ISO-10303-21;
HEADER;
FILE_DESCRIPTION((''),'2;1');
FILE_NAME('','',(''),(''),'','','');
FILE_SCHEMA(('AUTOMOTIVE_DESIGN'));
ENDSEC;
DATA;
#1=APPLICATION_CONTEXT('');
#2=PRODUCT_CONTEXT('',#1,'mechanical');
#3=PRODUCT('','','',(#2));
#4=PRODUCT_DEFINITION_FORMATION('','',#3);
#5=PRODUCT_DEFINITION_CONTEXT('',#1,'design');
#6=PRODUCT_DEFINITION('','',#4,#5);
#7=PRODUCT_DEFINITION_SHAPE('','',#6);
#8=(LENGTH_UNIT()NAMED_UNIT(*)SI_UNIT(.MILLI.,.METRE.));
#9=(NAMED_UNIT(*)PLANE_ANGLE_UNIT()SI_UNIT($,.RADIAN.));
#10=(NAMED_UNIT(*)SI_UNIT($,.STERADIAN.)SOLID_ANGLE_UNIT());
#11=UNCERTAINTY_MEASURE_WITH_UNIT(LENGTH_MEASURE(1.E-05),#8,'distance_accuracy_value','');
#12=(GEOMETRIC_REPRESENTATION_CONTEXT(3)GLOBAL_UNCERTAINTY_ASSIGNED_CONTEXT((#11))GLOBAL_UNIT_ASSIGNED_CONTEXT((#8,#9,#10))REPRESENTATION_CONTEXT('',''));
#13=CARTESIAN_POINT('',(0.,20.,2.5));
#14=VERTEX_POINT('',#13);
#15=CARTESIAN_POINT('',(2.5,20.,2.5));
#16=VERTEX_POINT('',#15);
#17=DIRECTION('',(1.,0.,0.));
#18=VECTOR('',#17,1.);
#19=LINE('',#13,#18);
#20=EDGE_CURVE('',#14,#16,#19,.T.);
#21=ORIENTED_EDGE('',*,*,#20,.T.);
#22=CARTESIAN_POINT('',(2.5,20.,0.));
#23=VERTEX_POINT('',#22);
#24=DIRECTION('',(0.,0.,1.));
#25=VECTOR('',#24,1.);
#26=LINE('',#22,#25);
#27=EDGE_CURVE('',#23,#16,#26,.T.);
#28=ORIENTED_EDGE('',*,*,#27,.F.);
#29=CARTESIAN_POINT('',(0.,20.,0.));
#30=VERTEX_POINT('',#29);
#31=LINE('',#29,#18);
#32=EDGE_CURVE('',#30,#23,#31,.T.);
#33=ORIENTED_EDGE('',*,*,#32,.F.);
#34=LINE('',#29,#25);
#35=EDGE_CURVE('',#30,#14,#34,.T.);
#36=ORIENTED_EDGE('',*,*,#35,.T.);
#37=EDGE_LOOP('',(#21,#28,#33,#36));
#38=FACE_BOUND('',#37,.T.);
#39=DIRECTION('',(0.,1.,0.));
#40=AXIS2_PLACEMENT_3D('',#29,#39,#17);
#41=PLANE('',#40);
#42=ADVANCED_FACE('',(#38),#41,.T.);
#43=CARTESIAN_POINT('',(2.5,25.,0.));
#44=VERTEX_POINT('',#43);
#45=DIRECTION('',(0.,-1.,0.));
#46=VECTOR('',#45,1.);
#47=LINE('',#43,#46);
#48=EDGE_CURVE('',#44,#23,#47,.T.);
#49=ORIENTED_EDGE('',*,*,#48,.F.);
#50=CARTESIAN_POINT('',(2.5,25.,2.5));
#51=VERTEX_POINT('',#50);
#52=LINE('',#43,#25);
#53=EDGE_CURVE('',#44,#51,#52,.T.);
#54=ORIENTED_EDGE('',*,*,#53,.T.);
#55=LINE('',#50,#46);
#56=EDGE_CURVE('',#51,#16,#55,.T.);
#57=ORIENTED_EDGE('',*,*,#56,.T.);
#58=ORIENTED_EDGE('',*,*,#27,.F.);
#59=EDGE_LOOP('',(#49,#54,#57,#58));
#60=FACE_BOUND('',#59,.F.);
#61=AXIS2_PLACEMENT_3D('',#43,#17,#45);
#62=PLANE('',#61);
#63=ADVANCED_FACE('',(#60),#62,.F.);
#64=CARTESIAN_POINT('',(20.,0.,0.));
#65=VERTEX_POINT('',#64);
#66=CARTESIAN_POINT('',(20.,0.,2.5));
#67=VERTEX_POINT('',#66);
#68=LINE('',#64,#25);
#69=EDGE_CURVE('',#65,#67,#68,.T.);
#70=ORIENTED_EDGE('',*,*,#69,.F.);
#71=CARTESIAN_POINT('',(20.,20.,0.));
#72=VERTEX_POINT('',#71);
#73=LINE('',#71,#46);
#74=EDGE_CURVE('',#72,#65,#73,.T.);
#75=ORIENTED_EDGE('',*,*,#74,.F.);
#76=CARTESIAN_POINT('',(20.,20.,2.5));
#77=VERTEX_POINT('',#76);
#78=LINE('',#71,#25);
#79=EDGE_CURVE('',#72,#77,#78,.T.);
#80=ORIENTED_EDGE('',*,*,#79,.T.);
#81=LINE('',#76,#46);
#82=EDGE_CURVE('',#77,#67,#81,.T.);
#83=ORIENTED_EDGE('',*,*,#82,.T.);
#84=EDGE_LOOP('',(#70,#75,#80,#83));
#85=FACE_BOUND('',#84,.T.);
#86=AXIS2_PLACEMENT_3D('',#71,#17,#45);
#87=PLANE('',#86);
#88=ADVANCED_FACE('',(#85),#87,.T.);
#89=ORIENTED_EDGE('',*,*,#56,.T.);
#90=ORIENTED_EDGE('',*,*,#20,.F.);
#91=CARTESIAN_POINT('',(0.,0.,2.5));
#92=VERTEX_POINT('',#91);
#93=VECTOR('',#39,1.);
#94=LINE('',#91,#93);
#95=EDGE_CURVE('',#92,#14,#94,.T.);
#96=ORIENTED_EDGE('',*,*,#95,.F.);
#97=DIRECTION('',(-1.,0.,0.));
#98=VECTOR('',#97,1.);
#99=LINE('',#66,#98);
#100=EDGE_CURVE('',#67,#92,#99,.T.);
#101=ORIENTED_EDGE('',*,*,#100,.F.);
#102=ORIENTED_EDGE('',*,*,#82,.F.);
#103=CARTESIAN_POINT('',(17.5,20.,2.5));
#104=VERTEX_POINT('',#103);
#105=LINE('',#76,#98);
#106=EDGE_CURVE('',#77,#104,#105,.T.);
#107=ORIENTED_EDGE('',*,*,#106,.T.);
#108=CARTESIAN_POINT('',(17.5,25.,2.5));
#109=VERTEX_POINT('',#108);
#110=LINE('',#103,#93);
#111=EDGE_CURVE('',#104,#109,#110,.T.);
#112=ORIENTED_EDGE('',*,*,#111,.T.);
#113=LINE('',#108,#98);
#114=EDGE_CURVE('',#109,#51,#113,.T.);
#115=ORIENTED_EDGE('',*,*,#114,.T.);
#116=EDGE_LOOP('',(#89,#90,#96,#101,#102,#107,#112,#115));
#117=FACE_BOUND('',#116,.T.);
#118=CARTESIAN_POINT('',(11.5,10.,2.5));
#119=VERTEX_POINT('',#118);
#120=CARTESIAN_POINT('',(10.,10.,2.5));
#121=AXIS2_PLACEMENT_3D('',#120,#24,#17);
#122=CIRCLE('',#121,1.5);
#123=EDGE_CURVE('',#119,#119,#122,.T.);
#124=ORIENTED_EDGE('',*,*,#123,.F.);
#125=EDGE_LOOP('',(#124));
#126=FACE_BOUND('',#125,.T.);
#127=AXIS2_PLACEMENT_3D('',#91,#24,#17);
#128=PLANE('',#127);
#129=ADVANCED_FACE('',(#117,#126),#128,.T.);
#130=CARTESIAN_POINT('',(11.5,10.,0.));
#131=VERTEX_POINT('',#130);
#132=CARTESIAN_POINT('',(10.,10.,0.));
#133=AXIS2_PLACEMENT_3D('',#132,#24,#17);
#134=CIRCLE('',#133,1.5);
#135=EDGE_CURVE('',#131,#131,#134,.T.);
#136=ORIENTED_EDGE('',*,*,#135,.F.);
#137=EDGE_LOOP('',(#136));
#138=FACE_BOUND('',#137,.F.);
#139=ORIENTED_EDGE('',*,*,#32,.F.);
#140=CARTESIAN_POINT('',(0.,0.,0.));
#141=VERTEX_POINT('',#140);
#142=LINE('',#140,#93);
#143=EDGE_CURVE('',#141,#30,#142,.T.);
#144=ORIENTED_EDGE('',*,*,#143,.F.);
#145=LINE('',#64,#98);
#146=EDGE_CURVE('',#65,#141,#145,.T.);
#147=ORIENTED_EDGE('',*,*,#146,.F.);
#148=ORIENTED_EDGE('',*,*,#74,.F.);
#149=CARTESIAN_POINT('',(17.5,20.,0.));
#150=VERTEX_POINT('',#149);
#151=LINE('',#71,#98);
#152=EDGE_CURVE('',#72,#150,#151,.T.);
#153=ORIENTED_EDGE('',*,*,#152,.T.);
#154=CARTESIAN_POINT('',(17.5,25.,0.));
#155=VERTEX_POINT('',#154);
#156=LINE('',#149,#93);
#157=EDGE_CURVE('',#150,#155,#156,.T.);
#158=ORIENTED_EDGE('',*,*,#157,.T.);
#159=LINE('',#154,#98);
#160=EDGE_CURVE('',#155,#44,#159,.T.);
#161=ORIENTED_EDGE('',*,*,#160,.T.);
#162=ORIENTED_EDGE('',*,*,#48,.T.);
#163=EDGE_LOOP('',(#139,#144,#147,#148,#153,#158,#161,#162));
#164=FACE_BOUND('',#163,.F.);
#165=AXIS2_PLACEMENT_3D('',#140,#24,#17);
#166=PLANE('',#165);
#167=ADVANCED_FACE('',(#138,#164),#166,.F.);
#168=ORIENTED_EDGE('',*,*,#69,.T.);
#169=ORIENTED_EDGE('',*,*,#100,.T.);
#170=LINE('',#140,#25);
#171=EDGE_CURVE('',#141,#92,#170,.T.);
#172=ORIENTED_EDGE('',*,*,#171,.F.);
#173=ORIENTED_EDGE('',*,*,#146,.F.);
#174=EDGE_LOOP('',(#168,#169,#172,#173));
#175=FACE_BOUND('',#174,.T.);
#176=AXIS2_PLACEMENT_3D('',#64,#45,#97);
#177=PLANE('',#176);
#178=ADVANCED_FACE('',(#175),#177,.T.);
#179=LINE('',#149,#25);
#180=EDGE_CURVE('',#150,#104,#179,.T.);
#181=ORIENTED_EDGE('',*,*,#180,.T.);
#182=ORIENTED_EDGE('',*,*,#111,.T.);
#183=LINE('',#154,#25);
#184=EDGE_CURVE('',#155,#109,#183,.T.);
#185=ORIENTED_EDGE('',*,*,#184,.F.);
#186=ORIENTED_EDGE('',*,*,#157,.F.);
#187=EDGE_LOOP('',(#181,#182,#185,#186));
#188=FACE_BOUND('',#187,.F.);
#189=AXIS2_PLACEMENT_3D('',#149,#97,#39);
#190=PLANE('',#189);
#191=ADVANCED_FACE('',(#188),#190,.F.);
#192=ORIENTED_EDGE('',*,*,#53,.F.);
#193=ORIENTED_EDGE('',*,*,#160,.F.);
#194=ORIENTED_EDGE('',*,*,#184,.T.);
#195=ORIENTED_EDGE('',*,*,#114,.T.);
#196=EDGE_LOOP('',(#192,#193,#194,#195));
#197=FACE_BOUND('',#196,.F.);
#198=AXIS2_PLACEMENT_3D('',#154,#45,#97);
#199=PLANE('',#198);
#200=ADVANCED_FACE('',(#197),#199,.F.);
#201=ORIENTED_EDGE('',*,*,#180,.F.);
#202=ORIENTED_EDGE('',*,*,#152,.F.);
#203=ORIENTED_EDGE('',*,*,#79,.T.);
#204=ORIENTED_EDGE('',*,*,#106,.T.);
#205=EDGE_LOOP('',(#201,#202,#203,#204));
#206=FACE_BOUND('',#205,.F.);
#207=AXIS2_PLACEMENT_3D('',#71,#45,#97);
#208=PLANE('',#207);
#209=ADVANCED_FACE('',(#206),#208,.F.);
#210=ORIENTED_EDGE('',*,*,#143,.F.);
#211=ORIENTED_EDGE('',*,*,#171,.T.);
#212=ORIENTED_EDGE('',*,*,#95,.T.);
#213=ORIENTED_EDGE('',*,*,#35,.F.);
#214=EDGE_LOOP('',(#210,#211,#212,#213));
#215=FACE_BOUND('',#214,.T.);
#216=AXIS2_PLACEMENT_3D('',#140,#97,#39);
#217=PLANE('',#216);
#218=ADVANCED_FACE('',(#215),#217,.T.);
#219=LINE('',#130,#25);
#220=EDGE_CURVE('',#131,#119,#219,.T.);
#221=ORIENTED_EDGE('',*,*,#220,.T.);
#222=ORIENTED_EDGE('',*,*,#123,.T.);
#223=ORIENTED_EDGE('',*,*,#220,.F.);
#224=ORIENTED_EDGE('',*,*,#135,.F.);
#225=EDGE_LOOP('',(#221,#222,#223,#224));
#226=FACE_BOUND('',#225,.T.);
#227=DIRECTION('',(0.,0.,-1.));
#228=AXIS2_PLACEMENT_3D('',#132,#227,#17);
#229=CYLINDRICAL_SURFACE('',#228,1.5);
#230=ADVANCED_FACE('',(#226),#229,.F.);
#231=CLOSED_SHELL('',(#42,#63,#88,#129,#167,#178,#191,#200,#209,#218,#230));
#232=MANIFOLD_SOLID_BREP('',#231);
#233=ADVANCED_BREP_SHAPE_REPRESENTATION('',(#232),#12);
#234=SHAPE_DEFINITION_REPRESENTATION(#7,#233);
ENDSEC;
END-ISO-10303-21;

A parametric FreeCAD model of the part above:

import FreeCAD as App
import Part
import Sketcher

V = App.Vector

doc = App.newDocument("Part")
body = doc.addObject("PartDesign::Body", "Body")

sketch1 = body.newObject("Sketcher::SketchObject", "Sketch")
sketch1.AttachmentSupport = (doc.getObject("XY_Plane"), [""])
sketch1.MapMode = "FlatFace"
sketch1.addGeometry([
    Part.LineSegment(V(0, 20, 0), V(0, 0, 0)),
    Part.LineSegment(V(0, 0, 0), V(20, 0, 0)),
    Part.LineSegment(V(20, 0, 0), V(20, 20, 0)),
    Part.LineSegment(V(20, 20, 0), V(17.5, 20, 0)),
    Part.LineSegment(V(17.5, 20, 0), V(17.5, 25, 0)),
    Part.LineSegment(V(17.5, 25, 0), V(2.5, 25, 0)),
    Part.LineSegment(V(2.5, 25, 0), V(2.5, 20, 0)),
    Part.LineSegment(V(2.5, 20, 0), V(0, 20, 0)),
    Part.Circle(V(10, 10, 0), V(0, 0, 1), 1.5),
], False)
sketch1.addConstraint([
    Sketcher.Constraint("Coincident", 0, 2, 1, 1),
    Sketcher.Constraint("Coincident", 1, 2, 2, 1),
    Sketcher.Constraint("Coincident", 2, 2, 3, 1),
    Sketcher.Constraint("Coincident", 3, 2, 4, 1),
    Sketcher.Constraint("Coincident", 4, 2, 5, 1),
    Sketcher.Constraint("Coincident", 5, 2, 6, 1),
    Sketcher.Constraint("Coincident", 6, 2, 7, 1),
    Sketcher.Constraint("Coincident", 7, 2, 0, 1),
    Sketcher.Constraint("Vertical", 0),
    Sketcher.Constraint("Horizontal", 1),
    Sketcher.Constraint("Vertical", 2),
    Sketcher.Constraint("Horizontal", 3),
    Sketcher.Constraint("Vertical", 4),
    Sketcher.Constraint("Horizontal", 5),
    Sketcher.Constraint("Vertical", 6),
    Sketcher.Constraint("Horizontal", 7),
    Sketcher.Constraint("Coincident", 0, 2, -1, 1),
    Sketcher.Constraint("Horizontal", 3, 2, 6, 2),
    Sketcher.Constraint("Equal", 3, 7),
    Sketcher.Constraint("Equal", 1, 0),
    Sketcher.Constraint("Diameter", 8, 3.0),
    Sketcher.Constraint("DistanceX", 1, 1, 1, 2, 20.0),
    Sketcher.Constraint("DistanceY", 4, 1, 4, 2, 5.0),
    Sketcher.Constraint("DistanceX", 3, 2, 3, 1, 2.5),
    Sketcher.Constraint("DistanceX", -1, 1, 8, 3, 10.0),
    Sketcher.Constraint("DistanceY", -1, 1, 8, 3, 10.0),
])
pad1 = body.newObject("PartDesign::Pad", "Pad")
pad1.Profile = sketch1
pad1.Length = 2.5

doc.recompute()
